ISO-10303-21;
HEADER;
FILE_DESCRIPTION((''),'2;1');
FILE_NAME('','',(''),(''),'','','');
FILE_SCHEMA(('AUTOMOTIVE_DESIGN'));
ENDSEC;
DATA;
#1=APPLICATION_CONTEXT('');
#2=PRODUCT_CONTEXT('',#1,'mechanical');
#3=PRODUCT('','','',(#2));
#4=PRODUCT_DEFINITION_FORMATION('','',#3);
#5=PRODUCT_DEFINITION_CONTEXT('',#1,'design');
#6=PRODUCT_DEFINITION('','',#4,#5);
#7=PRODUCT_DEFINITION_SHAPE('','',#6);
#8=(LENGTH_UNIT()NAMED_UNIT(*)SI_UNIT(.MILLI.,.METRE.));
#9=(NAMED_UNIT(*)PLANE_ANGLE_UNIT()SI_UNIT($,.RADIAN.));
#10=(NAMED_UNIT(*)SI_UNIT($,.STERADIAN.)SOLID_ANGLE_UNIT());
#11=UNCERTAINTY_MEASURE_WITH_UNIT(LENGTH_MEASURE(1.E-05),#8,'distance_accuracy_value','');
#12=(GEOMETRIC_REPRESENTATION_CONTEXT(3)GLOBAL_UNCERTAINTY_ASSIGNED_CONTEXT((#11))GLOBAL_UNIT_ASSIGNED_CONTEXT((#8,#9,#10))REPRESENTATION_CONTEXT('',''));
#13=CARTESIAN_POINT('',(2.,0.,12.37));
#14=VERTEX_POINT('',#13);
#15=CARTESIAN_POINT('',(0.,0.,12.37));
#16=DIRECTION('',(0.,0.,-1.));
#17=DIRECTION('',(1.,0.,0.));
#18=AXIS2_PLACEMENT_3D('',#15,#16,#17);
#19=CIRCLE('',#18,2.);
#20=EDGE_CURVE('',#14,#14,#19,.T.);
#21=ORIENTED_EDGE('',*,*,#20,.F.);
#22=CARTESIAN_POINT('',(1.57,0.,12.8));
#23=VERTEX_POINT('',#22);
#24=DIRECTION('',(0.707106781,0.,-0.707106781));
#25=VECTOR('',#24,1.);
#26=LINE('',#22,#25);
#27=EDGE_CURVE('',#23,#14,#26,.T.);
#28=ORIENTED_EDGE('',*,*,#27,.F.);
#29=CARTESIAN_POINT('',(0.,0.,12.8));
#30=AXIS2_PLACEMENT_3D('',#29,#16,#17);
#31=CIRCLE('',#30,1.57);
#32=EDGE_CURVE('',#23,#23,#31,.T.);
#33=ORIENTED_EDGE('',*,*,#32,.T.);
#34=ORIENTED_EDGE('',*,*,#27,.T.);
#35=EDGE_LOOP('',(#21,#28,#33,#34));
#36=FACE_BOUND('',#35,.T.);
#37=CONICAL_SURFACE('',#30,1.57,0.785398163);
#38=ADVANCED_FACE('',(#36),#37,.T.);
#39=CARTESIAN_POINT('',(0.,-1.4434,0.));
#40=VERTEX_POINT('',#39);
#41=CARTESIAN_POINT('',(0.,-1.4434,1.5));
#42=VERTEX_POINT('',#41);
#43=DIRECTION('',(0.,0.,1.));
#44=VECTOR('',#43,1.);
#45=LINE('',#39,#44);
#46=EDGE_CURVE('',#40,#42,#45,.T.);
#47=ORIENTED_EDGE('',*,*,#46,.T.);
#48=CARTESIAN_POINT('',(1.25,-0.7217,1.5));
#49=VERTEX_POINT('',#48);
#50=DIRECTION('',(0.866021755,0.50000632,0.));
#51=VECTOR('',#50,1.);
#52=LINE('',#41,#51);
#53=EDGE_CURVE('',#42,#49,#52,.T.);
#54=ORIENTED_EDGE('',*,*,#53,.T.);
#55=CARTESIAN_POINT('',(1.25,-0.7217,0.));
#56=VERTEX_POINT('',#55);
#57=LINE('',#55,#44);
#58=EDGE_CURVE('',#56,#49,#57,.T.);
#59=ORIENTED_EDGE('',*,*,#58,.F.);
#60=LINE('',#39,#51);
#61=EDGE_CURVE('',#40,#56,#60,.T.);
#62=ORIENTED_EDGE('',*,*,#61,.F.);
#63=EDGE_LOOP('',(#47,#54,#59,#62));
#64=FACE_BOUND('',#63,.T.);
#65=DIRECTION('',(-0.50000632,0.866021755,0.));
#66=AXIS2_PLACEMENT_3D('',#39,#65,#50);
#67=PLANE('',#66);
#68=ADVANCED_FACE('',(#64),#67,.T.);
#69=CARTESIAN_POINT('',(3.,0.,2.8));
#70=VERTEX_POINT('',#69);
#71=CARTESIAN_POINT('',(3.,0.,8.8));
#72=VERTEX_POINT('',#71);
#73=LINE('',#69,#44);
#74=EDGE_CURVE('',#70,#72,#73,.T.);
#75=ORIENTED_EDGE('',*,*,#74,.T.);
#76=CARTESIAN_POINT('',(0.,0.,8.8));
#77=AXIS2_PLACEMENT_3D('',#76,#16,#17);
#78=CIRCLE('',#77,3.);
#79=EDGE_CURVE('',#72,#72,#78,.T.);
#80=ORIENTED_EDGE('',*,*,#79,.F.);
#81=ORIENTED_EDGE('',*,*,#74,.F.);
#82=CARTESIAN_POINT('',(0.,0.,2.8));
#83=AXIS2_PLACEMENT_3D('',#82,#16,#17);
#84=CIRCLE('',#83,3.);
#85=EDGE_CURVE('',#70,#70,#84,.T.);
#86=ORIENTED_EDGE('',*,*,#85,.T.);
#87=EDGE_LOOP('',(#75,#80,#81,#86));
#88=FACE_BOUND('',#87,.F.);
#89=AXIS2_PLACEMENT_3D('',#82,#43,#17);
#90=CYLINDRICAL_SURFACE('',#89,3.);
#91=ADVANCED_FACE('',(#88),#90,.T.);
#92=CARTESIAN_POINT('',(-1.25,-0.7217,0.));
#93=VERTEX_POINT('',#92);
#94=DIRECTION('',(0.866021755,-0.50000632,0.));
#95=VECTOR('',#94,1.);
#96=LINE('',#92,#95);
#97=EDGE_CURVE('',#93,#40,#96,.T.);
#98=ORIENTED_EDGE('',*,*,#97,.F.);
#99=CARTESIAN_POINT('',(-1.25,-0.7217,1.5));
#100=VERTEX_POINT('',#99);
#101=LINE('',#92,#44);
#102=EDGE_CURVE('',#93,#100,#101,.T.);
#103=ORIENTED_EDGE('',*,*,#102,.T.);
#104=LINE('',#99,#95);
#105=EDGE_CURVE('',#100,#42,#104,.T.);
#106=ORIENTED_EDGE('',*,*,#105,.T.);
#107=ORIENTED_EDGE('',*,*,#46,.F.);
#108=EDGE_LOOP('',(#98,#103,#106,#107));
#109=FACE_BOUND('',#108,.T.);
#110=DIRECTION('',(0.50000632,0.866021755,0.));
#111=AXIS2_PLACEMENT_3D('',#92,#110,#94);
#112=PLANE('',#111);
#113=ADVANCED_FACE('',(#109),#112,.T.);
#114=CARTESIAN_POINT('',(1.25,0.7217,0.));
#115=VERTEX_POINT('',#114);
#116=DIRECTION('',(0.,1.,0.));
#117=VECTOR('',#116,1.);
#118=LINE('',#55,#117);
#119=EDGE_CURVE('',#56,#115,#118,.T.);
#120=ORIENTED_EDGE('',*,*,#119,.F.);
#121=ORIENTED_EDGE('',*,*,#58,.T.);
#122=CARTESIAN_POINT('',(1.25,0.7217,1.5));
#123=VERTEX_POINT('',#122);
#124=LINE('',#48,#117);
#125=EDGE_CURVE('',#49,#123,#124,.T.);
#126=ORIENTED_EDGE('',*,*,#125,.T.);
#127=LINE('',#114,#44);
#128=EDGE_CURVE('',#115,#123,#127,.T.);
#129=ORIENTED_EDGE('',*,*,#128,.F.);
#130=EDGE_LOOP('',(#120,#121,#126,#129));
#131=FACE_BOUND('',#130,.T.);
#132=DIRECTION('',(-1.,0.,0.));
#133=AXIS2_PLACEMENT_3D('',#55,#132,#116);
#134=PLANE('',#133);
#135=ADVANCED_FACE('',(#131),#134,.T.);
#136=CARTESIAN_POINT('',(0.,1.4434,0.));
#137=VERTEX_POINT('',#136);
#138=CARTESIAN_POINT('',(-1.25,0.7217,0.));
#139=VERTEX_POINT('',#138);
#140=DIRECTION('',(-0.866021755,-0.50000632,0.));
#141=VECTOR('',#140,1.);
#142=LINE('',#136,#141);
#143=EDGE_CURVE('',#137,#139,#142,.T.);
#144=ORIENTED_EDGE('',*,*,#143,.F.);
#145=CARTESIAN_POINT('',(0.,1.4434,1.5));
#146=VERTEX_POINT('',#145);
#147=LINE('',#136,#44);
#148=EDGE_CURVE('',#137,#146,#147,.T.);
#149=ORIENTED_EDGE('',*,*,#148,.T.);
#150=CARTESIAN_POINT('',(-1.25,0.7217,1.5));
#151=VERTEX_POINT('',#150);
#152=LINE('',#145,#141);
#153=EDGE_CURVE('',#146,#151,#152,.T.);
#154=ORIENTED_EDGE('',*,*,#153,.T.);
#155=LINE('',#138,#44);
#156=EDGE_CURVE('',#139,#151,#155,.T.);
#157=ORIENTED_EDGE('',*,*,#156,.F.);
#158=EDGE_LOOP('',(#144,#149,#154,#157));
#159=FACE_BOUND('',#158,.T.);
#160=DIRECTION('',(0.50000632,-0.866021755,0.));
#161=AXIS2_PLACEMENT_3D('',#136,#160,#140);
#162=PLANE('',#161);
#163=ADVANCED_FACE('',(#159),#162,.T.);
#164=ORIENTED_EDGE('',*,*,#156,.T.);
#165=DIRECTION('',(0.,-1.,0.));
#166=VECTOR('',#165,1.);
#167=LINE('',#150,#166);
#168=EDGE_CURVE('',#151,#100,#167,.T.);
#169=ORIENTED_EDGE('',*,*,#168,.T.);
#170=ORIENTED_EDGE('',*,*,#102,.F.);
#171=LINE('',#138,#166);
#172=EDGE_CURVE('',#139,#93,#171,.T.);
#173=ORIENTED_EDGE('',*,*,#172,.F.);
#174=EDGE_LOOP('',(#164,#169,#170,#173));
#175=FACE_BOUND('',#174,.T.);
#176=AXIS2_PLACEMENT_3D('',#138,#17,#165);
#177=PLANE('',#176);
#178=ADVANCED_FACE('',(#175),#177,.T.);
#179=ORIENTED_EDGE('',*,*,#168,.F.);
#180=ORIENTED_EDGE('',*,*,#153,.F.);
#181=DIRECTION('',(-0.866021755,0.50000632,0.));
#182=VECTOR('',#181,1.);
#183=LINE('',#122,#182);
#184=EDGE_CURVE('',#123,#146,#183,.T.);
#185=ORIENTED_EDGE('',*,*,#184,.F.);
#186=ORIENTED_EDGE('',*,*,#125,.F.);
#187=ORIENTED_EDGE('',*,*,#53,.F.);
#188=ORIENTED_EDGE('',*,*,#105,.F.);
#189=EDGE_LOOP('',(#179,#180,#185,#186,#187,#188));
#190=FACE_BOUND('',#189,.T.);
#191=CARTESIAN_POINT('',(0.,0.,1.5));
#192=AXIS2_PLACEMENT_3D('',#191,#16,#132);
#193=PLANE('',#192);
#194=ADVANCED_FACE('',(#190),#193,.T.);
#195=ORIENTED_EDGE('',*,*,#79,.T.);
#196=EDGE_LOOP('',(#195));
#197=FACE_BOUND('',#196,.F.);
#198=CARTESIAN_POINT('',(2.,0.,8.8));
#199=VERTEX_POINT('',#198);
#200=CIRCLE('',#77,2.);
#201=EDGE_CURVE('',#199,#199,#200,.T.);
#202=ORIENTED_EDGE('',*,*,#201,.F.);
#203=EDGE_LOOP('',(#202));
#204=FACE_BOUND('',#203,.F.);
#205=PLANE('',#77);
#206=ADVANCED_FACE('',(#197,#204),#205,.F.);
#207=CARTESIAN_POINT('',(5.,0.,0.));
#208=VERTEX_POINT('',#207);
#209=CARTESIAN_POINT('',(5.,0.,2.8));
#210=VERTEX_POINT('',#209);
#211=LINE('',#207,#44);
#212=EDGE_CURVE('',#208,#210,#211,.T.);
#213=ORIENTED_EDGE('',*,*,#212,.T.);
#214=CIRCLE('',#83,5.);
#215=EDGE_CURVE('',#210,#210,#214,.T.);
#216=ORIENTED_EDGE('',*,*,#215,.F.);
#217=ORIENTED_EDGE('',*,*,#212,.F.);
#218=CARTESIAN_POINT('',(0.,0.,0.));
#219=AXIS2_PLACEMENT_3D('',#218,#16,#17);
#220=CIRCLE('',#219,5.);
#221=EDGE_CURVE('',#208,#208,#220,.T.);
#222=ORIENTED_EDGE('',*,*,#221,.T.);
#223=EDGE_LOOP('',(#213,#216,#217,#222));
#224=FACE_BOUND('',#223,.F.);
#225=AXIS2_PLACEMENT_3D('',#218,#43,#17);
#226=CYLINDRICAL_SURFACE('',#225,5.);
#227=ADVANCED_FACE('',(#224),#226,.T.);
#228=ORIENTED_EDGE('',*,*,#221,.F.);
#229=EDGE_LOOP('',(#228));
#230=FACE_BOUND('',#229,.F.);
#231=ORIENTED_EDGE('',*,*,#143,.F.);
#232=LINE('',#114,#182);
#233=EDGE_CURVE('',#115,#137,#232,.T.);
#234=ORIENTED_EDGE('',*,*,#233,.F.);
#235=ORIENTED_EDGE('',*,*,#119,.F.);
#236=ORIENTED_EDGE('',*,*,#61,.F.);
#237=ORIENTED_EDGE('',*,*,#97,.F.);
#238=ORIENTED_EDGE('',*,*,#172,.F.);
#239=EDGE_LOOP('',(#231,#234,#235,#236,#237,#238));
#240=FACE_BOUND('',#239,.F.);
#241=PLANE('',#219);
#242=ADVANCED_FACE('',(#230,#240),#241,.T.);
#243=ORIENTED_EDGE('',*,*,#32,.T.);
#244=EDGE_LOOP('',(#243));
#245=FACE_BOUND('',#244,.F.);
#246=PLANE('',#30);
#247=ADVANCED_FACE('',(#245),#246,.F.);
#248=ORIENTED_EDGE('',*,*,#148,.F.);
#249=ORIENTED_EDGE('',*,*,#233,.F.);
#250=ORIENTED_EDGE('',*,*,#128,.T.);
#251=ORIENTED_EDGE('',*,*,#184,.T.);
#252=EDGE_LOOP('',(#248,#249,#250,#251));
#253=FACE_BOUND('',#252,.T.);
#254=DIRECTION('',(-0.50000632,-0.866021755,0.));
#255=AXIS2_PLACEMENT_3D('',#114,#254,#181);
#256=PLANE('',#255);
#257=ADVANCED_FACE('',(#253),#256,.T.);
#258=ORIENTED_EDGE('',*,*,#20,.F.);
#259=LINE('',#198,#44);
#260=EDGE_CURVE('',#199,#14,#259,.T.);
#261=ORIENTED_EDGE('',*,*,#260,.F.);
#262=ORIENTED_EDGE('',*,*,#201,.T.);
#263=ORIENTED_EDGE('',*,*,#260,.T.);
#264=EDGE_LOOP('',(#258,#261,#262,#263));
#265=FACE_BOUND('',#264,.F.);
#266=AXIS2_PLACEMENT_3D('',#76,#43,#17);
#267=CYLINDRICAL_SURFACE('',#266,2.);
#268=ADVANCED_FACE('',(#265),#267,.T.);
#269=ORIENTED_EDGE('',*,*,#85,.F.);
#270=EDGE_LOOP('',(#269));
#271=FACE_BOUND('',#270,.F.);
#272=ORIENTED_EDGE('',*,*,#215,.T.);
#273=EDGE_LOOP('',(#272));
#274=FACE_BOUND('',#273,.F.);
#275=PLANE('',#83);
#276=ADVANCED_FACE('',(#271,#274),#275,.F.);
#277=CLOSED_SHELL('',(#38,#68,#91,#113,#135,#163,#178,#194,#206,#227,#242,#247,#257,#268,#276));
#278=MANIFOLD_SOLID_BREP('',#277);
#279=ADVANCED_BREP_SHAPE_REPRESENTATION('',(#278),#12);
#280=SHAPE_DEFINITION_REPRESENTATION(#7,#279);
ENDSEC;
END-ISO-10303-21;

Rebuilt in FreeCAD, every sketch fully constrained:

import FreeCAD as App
import Part
import Sketcher

V = App.Vector
Q = App.Units.Quantity


def add_polygon(sketch, points):
    """Adds a closed chain of lines whose ends are joined by coincident constraints."""
    first, n = sketch.GeometryCount, len(points)
    for a, b in zip(points, points[1:] + points[:1]):
        sketch.addGeometry(Part.LineSegment(App.Vector(*a, 0), App.Vector(*b, 0)), False)
    for i in range(n):
        sketch.addConstraint(Sketcher.Constraint("Coincident", first + i, 2, first + (i + 1) % n, 1))

doc = App.newDocument("Part")
body = doc.addObject("PartDesign::Body", "Body")

sketch1 = doc.addObject("Sketcher::SketchObject", "Sketch")
body.addObject(sketch1)
sketch1.AttachmentSupport = (doc.XZ_Plane, [""])
sketch1.MapMode = "FlatFace"
add_polygon(sketch1, [(5, 0), (0, 0), (0, 12.8), (1.6, 12.8), (2, 12.4), (2, 8.8), (3, 8.8), (3, 2.8), (5, 2.8)])
sketch1.addConstraint(Sketcher.Constraint("Horizontal", 0))
sketch1.addConstraint(Sketcher.Constraint("Vertical", 1))
sketch1.addConstraint(Sketcher.Constraint("Horizontal", 2))
sketch1.addConstraint(Sketcher.Constraint("Vertical", 4))
sketch1.addConstraint(Sketcher.Constraint("Horizontal", 5))
sketch1.addConstraint(Sketcher.Constraint("Vertical", 6))
sketch1.addConstraint(Sketcher.Constraint("Horizontal", 7))
sketch1.addConstraint(Sketcher.Constraint("Vertical", 8))
sketch1.addConstraint(Sketcher.Constraint("Coincident", 0, 2, -1, 1))
sketch1.addConstraint(Sketcher.Constraint("DistanceY", 6, 2, 6, 1, 6.0))
sketch1.addConstraint(Sketcher.Constraint("DistanceY", 8, 2, 8, 1, 2.8))
sketch1.addConstraint(Sketcher.Constraint("DistanceY", 4, 2, 2, 2, 4.0))
sketch1.addConstraint(Sketcher.Constraint("DistanceX", 0, 2, 0, 1, 5.0))
sketch1.addConstraint(Sketcher.Constraint("DistanceX", 5, 1, 5, 2, 1.0))
sketch1.addConstraint(Sketcher.Constraint("DistanceX", 7, 1, 7, 2, 2.0))
sketch1.addConstraint(Sketcher.Constraint("Angle", 3, Q("-45 deg")))
sketch1.addConstraint(Sketcher.Constraint("DistanceX", 2, 2, 3, 2, 0.43))
revolution = doc.addObject("PartDesign::Revolution", "Revolution")
body.addObject(revolution)
revolution.Profile = sketch1
revolution.ReferenceAxis = (sketch1, ["V_Axis"])
revolution.Angle = 360

sketch2 = doc.addObject("Sketcher::SketchObject", "Sketch001")
body.addObject(sketch2)
sketch2.AttachmentSupport = (doc.XY_Plane, [""])
sketch2.MapMode = "FlatFace"
add_polygon(sketch2, [(1.2, -0.7), (0, -1.4), (-1.2, -0.7), (-1.2, 0.7), (0, 1.4), (1.2, 0.7)])
sketch2.addConstraint(Sketcher.Constraint("Vertical", 2))
sketch2.addConstraint(Sketcher.Constraint("Vertical", 5))
sketch2.addConstraint(Sketcher.Constraint("Symmetric", 0, 2, 3, 2, -1, 1))
sketch2.addConstraint(Sketcher.Constraint("Symmetric", 1, 2, 4, 2, -1, 1))
sketch2.addConstraint(Sketcher.Constraint("PointOnObject", 0, 2, -2))
sketch2.addConstraint(Sketcher.Constraint("Parallel", 0, 3))
sketch2.addConstraint(Sketcher.Constraint("Horizontal", 2, 2, 4, 2))
sketch2.addConstraint(Sketcher.Constraint("DistanceX", 2, 2, 4, 2, 2.5))
sketch2.addConstraint(Sketcher.Constraint("Angle", 0, Q("-149.9996 deg")))
sketch2.addConstraint(Sketcher.Constraint("DistanceY", 2, 1, 2, 2, 1.4434))
pocket1 = doc.addObject("PartDesign::Pocket", "Pocket")
body.addObject(pocket1)
pocket1.Profile = sketch2
pocket1.Length = 1.5
pocket1.Reversed = True

doc.recompute()
